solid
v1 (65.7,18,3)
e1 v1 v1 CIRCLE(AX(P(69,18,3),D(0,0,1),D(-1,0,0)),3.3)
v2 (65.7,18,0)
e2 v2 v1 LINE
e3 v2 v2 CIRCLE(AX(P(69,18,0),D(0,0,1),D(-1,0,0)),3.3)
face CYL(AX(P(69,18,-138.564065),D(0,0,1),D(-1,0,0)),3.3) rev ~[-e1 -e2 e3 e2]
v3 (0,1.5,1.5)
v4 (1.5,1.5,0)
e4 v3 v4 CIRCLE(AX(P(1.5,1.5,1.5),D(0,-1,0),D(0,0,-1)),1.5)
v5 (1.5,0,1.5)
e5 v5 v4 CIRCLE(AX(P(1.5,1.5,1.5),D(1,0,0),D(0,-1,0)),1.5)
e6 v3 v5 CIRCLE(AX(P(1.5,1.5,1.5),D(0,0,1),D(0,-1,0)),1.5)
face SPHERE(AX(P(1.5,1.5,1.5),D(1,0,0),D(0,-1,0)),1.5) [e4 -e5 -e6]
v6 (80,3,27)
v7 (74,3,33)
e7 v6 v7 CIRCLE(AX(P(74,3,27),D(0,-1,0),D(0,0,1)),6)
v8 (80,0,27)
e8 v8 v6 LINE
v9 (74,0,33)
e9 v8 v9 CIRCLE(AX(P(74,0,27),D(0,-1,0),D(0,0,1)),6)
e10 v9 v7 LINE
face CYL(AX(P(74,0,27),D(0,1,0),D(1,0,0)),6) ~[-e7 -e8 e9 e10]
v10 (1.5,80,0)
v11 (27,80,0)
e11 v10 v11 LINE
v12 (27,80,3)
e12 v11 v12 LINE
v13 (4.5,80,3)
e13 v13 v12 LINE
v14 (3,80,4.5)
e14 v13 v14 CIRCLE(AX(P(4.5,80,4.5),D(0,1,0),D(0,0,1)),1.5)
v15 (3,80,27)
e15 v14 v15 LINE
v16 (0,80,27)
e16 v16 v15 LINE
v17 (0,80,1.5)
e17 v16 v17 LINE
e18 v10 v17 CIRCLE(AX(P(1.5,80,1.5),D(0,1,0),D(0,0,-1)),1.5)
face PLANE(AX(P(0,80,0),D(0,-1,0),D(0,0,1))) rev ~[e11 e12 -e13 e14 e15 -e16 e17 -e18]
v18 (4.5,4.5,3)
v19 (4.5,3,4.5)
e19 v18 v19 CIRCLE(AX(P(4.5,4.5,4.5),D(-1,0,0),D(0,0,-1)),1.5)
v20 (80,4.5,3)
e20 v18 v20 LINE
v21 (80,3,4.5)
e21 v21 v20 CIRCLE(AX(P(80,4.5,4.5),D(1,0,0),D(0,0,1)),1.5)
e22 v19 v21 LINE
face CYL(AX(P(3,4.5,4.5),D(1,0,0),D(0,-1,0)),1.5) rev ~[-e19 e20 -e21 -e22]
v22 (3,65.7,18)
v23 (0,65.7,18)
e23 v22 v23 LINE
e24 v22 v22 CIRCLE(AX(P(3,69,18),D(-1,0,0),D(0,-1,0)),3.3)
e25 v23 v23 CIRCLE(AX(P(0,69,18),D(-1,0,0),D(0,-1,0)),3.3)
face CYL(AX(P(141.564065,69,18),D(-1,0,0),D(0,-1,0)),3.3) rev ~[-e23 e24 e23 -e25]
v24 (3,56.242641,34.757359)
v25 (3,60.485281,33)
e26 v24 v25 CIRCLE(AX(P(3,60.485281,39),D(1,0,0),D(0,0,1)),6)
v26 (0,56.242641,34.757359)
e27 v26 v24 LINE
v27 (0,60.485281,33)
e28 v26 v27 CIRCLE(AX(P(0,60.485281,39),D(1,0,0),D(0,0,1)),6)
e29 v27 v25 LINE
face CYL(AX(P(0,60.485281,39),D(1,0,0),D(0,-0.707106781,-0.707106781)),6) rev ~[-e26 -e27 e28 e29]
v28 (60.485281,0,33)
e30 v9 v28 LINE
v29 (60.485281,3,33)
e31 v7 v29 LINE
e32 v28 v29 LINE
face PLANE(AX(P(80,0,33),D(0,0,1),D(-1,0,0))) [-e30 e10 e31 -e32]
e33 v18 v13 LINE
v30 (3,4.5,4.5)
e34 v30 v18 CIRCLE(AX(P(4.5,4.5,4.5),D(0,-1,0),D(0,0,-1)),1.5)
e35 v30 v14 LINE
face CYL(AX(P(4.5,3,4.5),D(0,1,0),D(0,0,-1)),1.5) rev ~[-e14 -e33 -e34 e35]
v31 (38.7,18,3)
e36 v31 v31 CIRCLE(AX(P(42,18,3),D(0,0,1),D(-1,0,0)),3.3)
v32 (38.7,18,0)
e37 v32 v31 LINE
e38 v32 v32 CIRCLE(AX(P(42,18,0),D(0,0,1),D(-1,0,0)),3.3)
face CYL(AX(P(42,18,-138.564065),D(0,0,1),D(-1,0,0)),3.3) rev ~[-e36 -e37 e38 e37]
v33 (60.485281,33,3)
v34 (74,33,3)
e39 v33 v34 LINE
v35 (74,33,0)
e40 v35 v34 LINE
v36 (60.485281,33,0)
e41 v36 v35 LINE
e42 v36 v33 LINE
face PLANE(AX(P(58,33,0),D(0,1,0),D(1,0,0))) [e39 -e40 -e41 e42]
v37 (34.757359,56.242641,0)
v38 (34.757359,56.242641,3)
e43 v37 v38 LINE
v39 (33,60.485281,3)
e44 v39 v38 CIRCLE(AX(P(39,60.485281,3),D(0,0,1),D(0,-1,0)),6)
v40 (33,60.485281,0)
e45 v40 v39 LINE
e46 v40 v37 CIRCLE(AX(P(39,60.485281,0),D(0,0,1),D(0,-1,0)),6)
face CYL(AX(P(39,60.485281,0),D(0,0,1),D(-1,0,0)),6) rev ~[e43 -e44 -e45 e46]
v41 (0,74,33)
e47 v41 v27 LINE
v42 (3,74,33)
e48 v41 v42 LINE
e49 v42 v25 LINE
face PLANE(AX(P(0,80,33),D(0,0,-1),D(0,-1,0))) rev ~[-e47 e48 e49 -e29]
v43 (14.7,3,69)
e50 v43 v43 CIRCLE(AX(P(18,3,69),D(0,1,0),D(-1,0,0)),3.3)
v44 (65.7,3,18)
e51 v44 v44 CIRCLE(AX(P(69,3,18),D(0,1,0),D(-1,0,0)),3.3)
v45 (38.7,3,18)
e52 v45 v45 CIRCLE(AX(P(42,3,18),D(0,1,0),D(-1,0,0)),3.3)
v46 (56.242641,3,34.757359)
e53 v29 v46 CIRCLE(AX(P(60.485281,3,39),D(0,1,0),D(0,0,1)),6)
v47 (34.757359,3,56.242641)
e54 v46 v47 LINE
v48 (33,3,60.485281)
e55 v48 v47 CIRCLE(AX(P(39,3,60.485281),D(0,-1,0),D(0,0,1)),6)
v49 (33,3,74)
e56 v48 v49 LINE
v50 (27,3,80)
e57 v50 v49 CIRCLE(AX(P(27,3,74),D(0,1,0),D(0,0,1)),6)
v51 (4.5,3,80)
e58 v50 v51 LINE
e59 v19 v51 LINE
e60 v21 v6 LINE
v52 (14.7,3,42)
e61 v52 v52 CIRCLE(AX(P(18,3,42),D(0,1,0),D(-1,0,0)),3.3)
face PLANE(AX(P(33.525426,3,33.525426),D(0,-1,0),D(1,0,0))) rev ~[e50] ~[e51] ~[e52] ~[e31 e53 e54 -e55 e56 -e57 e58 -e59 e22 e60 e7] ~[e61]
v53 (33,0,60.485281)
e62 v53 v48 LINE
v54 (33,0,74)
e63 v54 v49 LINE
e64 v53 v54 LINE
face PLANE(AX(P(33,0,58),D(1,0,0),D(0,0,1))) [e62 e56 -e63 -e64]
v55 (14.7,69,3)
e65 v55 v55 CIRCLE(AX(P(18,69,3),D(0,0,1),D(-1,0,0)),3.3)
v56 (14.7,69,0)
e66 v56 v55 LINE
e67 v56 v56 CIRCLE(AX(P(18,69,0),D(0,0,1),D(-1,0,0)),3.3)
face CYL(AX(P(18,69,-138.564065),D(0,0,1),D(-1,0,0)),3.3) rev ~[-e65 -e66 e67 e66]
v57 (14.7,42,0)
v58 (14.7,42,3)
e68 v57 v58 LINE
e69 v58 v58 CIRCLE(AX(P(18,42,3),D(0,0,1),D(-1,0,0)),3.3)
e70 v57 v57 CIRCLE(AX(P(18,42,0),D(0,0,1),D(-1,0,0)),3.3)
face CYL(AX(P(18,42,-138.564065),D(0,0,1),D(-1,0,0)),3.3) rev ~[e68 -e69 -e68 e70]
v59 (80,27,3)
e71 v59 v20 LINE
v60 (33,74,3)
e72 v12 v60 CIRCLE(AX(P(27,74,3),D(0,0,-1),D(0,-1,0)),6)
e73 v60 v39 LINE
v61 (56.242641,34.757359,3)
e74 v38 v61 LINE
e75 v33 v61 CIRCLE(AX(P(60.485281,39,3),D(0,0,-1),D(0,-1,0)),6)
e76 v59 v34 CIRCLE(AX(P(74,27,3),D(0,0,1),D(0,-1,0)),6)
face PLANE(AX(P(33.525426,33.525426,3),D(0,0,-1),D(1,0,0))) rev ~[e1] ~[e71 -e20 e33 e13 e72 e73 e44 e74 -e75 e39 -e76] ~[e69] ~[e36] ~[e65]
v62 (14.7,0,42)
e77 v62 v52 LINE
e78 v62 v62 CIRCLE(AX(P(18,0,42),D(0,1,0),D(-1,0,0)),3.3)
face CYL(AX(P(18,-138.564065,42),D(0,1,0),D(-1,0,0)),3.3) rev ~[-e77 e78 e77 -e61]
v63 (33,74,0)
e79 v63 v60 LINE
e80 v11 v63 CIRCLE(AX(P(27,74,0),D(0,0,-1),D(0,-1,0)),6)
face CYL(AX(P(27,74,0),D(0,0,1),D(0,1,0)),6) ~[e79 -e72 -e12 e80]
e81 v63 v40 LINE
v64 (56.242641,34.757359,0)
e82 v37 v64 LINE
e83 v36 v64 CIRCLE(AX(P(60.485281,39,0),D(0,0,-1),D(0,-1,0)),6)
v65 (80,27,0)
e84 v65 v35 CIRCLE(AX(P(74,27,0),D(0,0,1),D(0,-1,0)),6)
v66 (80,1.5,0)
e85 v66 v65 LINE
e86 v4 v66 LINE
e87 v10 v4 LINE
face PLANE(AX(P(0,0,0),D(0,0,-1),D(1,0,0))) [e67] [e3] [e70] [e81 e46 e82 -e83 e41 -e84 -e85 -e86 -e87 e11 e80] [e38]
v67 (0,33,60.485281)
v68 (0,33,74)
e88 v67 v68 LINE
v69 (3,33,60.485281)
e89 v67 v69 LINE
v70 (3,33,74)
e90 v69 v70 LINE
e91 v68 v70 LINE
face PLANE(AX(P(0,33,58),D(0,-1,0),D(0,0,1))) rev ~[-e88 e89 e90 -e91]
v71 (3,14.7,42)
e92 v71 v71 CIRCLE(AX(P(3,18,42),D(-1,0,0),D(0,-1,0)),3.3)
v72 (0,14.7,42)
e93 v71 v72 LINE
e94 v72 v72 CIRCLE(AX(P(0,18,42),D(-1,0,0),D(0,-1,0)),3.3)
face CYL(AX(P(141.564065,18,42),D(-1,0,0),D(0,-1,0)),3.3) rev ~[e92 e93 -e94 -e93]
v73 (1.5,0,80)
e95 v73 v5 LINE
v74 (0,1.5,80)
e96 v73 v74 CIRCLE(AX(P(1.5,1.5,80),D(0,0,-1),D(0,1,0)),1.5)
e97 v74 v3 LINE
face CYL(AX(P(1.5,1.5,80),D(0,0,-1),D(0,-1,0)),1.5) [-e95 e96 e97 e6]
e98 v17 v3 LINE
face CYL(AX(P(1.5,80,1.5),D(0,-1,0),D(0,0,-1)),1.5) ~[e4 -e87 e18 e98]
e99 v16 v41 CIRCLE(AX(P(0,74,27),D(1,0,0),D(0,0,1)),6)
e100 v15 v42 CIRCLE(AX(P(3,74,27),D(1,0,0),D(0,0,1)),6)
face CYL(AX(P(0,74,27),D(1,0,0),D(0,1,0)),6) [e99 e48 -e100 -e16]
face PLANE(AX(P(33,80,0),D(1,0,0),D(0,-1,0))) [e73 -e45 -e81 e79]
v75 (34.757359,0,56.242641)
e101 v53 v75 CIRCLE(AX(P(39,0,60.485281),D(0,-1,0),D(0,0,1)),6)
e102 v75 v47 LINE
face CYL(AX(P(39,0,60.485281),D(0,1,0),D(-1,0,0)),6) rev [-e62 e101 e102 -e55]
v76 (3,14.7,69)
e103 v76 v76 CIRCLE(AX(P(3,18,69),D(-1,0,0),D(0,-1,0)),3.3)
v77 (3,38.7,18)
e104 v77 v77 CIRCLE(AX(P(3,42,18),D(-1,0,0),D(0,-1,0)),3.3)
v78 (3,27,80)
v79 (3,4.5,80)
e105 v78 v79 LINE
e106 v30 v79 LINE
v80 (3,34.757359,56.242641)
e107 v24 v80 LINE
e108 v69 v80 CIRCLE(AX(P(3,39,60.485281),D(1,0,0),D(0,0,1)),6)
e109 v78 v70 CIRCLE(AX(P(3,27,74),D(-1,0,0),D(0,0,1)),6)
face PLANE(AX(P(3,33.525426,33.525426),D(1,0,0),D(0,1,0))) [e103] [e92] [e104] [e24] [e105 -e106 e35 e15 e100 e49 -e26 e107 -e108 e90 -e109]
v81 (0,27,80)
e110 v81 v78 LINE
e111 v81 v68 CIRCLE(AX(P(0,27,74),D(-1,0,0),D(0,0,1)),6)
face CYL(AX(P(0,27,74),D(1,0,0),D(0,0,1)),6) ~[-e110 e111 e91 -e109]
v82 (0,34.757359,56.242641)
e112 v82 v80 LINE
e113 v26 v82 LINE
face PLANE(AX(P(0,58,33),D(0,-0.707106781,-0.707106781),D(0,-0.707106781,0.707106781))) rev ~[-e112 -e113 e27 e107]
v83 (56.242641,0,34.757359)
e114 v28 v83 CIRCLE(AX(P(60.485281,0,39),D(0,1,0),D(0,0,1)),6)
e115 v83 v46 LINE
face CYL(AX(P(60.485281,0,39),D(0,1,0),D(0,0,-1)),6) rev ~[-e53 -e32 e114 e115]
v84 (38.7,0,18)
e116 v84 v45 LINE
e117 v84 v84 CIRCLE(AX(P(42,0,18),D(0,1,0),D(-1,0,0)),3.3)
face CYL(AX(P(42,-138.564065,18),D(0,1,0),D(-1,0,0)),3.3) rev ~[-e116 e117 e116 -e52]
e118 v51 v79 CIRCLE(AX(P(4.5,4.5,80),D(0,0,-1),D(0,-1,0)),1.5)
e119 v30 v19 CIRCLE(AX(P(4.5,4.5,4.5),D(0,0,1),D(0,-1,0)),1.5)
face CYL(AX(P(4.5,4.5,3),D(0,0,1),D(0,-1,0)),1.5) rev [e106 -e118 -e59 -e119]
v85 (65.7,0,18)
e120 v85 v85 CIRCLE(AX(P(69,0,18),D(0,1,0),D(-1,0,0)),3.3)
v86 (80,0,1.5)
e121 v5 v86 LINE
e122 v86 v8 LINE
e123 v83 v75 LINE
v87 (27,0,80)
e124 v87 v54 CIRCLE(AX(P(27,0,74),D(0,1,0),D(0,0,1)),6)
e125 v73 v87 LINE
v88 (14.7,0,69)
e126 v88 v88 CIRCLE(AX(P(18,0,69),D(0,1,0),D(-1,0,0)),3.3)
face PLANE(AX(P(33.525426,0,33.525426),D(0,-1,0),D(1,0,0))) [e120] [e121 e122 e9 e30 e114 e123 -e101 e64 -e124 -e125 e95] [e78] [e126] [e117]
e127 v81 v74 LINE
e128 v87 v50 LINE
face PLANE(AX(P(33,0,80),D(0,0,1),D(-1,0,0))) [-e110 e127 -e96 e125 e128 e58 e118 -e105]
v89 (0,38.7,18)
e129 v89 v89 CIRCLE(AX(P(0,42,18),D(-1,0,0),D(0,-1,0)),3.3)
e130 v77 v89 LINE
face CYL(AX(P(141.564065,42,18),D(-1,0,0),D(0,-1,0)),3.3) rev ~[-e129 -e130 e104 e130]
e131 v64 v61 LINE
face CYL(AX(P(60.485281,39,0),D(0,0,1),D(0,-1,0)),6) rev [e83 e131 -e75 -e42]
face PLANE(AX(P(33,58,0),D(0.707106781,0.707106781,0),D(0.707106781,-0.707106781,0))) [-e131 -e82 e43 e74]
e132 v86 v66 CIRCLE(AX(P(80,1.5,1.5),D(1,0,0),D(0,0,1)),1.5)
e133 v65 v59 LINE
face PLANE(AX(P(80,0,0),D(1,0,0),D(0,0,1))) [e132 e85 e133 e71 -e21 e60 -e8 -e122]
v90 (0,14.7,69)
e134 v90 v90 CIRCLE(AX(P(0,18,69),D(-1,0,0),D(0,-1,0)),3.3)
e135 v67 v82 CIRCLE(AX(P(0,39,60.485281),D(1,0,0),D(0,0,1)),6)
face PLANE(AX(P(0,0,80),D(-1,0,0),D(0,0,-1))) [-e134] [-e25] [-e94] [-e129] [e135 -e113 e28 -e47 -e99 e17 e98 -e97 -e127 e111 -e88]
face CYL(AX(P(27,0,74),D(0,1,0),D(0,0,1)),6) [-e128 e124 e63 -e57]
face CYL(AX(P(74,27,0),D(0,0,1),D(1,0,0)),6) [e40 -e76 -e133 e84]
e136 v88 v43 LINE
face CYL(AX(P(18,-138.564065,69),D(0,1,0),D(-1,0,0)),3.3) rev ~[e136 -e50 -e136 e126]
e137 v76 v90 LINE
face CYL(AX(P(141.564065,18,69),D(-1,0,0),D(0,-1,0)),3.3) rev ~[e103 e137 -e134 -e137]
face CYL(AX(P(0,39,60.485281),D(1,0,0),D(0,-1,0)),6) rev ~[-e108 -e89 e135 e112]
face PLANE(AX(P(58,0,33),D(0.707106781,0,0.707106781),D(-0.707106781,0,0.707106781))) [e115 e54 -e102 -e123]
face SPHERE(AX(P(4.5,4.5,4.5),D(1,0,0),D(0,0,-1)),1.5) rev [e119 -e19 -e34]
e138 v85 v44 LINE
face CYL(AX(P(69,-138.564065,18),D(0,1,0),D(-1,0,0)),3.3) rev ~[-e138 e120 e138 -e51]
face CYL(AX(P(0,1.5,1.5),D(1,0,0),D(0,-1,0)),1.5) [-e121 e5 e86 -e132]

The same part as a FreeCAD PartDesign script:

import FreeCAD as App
import Part
import Sketcher
from FreeCAD import Vector
Q = App.Units.Quantity


def edges_at(feature, points):
    """Names of the edges that pass closest to the given points."""
    edges = feature.Shape.Edges
    near = lambda p: min(range(len(edges)), key=lambda i: edges[i].distToShape(Part.Vertex(*p))[0])
    return sorted({f"Edge{near(p) + 1}" for p in points})

doc = App.newDocument("Part")
body = doc.addObject("PartDesign::Body", "Body")

# Sketch on XZ plane
sketch1 = body.newObject("Sketcher::SketchObject", "Sketch")
sketch1.AttachmentSupport = (doc.getObject("XZ_Plane"), [""])
sketch1.MapMode = "FlatFace"
sketch1.addGeometry([
    Part.LineSegment(Vector(33, 80, 0), Vector(0, 80, 0)),  # 0
    Part.LineSegment(Vector(0, 80, 0), Vector(0, 0, 0)),  # 1
    Part.LineSegment(Vector(0, 0, 0), Vector(80, 0, 0)),  # 2
    Part.LineSegment(Vector(80, 0, 0), Vector(80, 33, 0)),  # 3
    Part.LineSegment(Vector(80, 33, 0), Vector(58, 33, 0)),  # 4
    Part.LineSegment(Vector(58, 33, 0), Vector(33, 58, 0)),  # 5
    Part.LineSegment(Vector(33, 58, 0), Vector(33, 80, 0)),  # 6
], False)
sketch1.addConstraint([
    Sketcher.Constraint("Coincident", 0, 2, 1, 1),
    Sketcher.Constraint("Coincident", 1, 2, 2, 1),
    Sketcher.Constraint("Coincident", 2, 2, 3, 1),
    Sketcher.Constraint("Coincident", 3, 2, 4, 1),
    Sketcher.Constraint("Coincident", 4, 2, 5, 1),
    Sketcher.Constraint("Coincident", 5, 2, 6, 1),
    Sketcher.Constraint("Coincident", 6, 2, 0, 1),
    Sketcher.Constraint("Horizontal", 0),
    Sketcher.Constraint("Vertical", 1),
    Sketcher.Constraint("Horizontal", 2),
    Sketcher.Constraint("Vertical", 3),
    Sketcher.Constraint("Horizontal", 4),
    Sketcher.Constraint("Vertical", 6),
    Sketcher.Constraint("Coincident", 1, 2, -1, 1),
    Sketcher.Constraint("Equal", 2, 1),
    Sketcher.Constraint("Equal", 0, 3),
    Sketcher.Constraint("Equal", 4, 6),
    Sketcher.Constraint("DistanceX", 0, 2, 0, 1, Q("33 mm")),
    Sketcher.Constraint("DistanceX", 2, 1, 2, 2, Q("80 mm")),
    Sketcher.Constraint("DistanceX", 4, 2, 4, 1, Q("22 mm")),
])
pad1 = body.newObject("PartDesign::Pad", "Pad")
pad1.Profile = sketch1
pad1.Length = 3
pad1.Reversed = True

# Sketch on YZ plane
sketch2 = body.newObject("Sketcher::SketchObject", "Sketch001")
sketch2.AttachmentSupport = (doc.getObject("YZ_Plane"), [""])
sketch2.MapMode = "FlatFace"
sketch2.addGeometry([
    Part.LineSegment(Vector(0, 80, 0), Vector(0, 0, 0)),  # 0
    Part.LineSegment(Vector(0, 0, 0), Vector(80, 0, 0)),  # 1
    Part.LineSegment(Vector(80, 0, 0), Vector(80, 33, 0)),  # 2
    Part.LineSegment(Vector(80, 33, 0), Vector(58, 33, 0)),  # 3
    Part.LineSegment(Vector(58, 33, 0), Vector(33, 58, 0)),  # 4
    Part.LineSegment(Vector(33, 58, 0), Vector(33, 80, 0)),  # 5
    Part.LineSegment(Vector(33, 80, 0), Vector(0, 80, 0)),  # 6
], False)
sketch2.addConstraint([
    Sketcher.Constraint("Coincident", 0, 2, 1, 1),
    Sketcher.Constraint("Coincident", 1, 2, 2, 1),
    Sketcher.Constraint("Coincident", 2, 2, 3, 1),
    Sketcher.Constraint("Coincident", 3, 2, 4, 1),
    Sketcher.Constraint("Coincident", 4, 2, 5, 1),
    Sketcher.Constraint("Coincident", 5, 2, 6, 1),
    Sketcher.Constraint("Coincident", 6, 2, 0, 1),
    Sketcher.Constraint("Vertical", 0),
    Sketcher.Constraint("Horizontal", 1),
    Sketcher.Constraint("Vertical", 2),
    Sketcher.Constraint("Horizontal", 3),
    Sketcher.Constraint("Vertical", 5),
    Sketcher.Constraint("Horizontal", 6),
    Sketcher.Constraint("Coincident", 0, 2, -1, 1),
    Sketcher.Constraint("Equal", 1, 0),
    Sketcher.Constraint("Equal", 6, 2),
    Sketcher.Constraint("Equal", 3, 5),
    Sketcher.Constraint("DistanceX", 1, 1, 1, 2, Q("80 mm")),
    Sketcher.Constraint("DistanceX", 3, 2, 3, 1, Q("22 mm")),
    Sketcher.Constraint("DistanceX", 6, 2, 6, 1, Q("33 mm")),
])
pad2 = body.newObject("PartDesign::Pad", "Pad001")
pad2.Profile = sketch2
pad2.Length = 3

# Sketch on XY plane
sketch3 = body.newObject("Sketcher::SketchObject", "Sketch002")
sketch3.AttachmentSupport = (doc.getObject("XY_Plane"), [""])
sketch3.MapMode = "FlatFace"
sketch3.addGeometry([
    Part.LineSegment(Vector(80, 0, 0), Vector(0, 0, 0)),  # 0
    Part.LineSegment(Vector(0, 0, 0), Vector(0, 80, 0)),  # 1
    Part.LineSegment(Vector(0, 80, 0), Vector(33, 80, 0)),  # 2
    Part.LineSegment(Vector(33, 80, 0), Vector(33, 58, 0)),  # 3
    Part.LineSegment(Vector(33, 58, 0), Vector(58, 33, 0)),  # 4
    Part.LineSegment(Vector(58, 33, 0), Vector(80, 33, 0)),  # 5
    Part.LineSegment(Vector(80, 33, 0), Vector(80, 0, 0)),  # 6
], False)
sketch3.addConstraint([
    Sketcher.Constraint("Coincident", 0, 2, 1, 1),
    Sketcher.Constraint("Coincident", 1, 2, 2, 1),
    Sketcher.Constraint("Coincident", 2, 2, 3, 1),
    Sketcher.Constraint("Coincident", 3, 2, 4, 1),
    Sketcher.Constraint("Coincident", 4, 2, 5, 1),
    Sketcher.Constraint("Coincident", 5, 2, 6, 1),
    Sketcher.Constraint("Coincident", 6, 2, 0, 1),
    Sketcher.Constraint("Horizontal", 0),
    Sketcher.Constraint("Vertical", 1),
    Sketcher.Constraint("Horizontal", 2),
    Sketcher.Constraint("Vertical", 3),
    Sketcher.Constraint("Horizontal", 5),
    Sketcher.Constraint("Vertical", 6),
    Sketcher.Constraint("Coincident", 0, 2, -1, 1),
    Sketcher.Constraint("Equal", 0, 1),
    Sketcher.Constraint("Equal", 5, 3),
    Sketcher.Constraint("Equal", 2, 6),
    Sketcher.Constraint("DistanceX", 0, 2, 0, 1, Q("80 mm")),
    Sketcher.Constraint("DistanceX", 2, 1, 2, 2, Q("33 mm")),
    Sketcher.Constraint("DistanceX", 5, 1, 5, 2, Q("22 mm")),
])
pad3 = body.newObject("PartDesign::Pad", "Pad002")
pad3.Profile = sketch3
pad3.Length = 3

# Sketch on XZ plane
sketch4 = body.newObject("Sketcher::SketchObject", "Sketch003")
sketch4.AttachmentSupport = (doc.getObject("XZ_Plane"), [""])
sketch4.MapMode = "FlatFace"
sketch4.addGeometry([
    Part.Circle(Vector(42, 18, 0), Vector(0, 0, 1), 3.3),
    Part.Circle(Vector(69, 18, 0), Vector(0, 0, 1), 3.3),
    Part.Circle(Vector(18, 69, 0), Vector(0, 0, 1), 3.3),
    Part.Circle(Vector(18, 42, 0), Vector(0, 0, 1), 3.3),
], False)
sketch4.addConstraint([
    Sketcher.Constraint("Equal", 0, 1),
    Sketcher.Constraint("Equal", 1, 2),
    Sketcher.Constraint("Equal", 2, 3),
    Sketcher.Constraint("Horizontal", 0, 3, 1, 3),
    Sketcher.Constraint("Vertical", 2, 3, 3, 3),
    Sketcher.Constraint("Diameter", 0, Q("6.6 mm")),
    Sketcher.Constraint("DistanceX", -1, 1, 0, 3, Q("42 mm")),
    Sketcher.Constraint("DistanceY", -1, 1, 0, 3, Q("18 mm")),
    Sketcher.Constraint("DistanceX", -1, 1, 1, 3, Q("69 mm")),
    Sketcher.Constraint("DistanceX", -1, 1, 2, 3, Q("18 mm")),
    Sketcher.Constraint("DistanceY", -1, 1, 2, 3, Q("69 mm")),
    Sketcher.Constraint("DistanceY", -1, 1, 3, 3, Q("42 mm")),
])
doc.recompute()
hole = body.newObject("PartDesign::Hole", "Hole")
hole.Profile = sketch4
hole.ThreadType = "None"
hole.Diameter = 6.6
hole.DepthType = "ThroughAll"

# Sketch on YZ plane
sketch5 = body.newObject("Sketcher::SketchObject", "Sketch004")
sketch5.AttachmentSupport = (doc.getObject("YZ_Plane"), [""])
sketch5.MapMode = "FlatFace"
sketch5.AttachmentOffset = App.Placement(Vector(0, 0, 3), App.Rotation())
sketch5.addGeometry([
    Part.Circle(Vector(42, 18, 0), Vector(0, 0, 1), 3.3),
    Part.Circle(Vector(69, 18, 0), Vector(0, 0, 1), 3.3),
    Part.Circle(Vector(18, 69, 0), Vector(0, 0, 1), 3.3),
    Part.Circle(Vector(18, 42, 0), Vector(0, 0, 1), 3.3),
], False)
sketch5.addConstraint([
    Sketcher.Constraint("Equal", 0, 1),
    Sketcher.Constraint("Equal", 1, 2),
    Sketcher.Constraint("Equal", 2, 3),
    Sketcher.Constraint("Horizontal", 0, 3, 1, 3),
    Sketcher.Constraint("Vertical", 2, 3, 3, 3),
    Sketcher.Constraint("Diameter", 0, Q("6.6 mm")),
    Sketcher.Constraint("DistanceX", -1, 1, 0, 3, Q("42 mm")),
    Sketcher.Constraint("DistanceY", -1, 1, 0, 3, Q("18 mm")),
    Sketcher.Constraint("DistanceX", -1, 1, 1, 3, Q("69 mm")),
    Sketcher.Constraint("DistanceX", -1, 1, 2, 3, Q("18 mm")),
    Sketcher.Constraint("DistanceY", -1, 1, 2, 3, Q("69 mm")),
    Sketcher.Constraint("DistanceY", -1, 1, 3, 3, Q("42 mm")),
])
doc.recompute()
hole2 = body.newObject("PartDesign::Hole", "Hole001")
hole2.Profile = sketch5
hole2.ThreadType = "None"
hole2.Diameter = 6.6
hole2.DepthType = "ThroughAll"

# Sketch on XY plane
sketch6 = body.newObject("Sketcher::SketchObject", "Sketch005")
sketch6.AttachmentSupport = (doc.getObject("XY_Plane"), [""])
sketch6.MapMode = "FlatFace"
sketch6.addGeometry([
    Part.Circle(Vector(42, 18, 0), Vector(0, 0, 1), 3.3),
    Part.Circle(Vector(69, 18, 0), Vector(0, 0, 1), 3.3),
    Part.Circle(Vector(18, 42, 0), Vector(0, 0, 1), 3.3),
    Part.Circle(Vector(18, 69, 0), Vector(0, 0, 1), 3.3),
], False)
sketch6.addConstraint([
    Sketcher.Constraint("Equal", 0, 1),
    Sketcher.Constraint("Equal", 1, 2),
    Sketcher.Constraint("Equal", 2, 3),
    Sketcher.Constraint("Horizontal", 0, 3, 1, 3),
    Sketcher.Constraint("Vertical", 2, 3, 3, 3),
    Sketcher.Constraint("Diameter", 0, Q("6.6 mm")),
    Sketcher.Constraint("DistanceX", -1, 1, 0, 3, Q("42 mm")),
    Sketcher.Constraint("DistanceY", -1, 1, 0, 3, Q("18 mm")),
    Sketcher.Constraint("DistanceX", -1, 1, 1, 3, Q("69 mm")),
    Sketcher.Constraint("DistanceX", -1, 1, 2, 3, Q("18 mm")),
    Sketcher.Constraint("DistanceY", -1, 1, 2, 3, Q("42 mm")),
    Sketcher.Constraint("DistanceY", -1, 1, 3, 3, Q("69 mm")),
])
doc.recompute()
hole3 = body.newObject("PartDesign::Hole", "Hole002")
hole3.Profile = sketch6
hole3.ThreadType = "None"
hole3.Diameter = 6.6
hole3.DepthType = "ThroughAll"
hole3.Reversed = True
doc.recompute()

fillet = body.newObject("PartDesign::Fillet", "Fillet")
fillet.Base = (hole3, edges_at(hole3, [
    (33, 1.5, 80),
    (1.5, 80, 33),
    (80, 1.5, 33),
    (33, 1.5, 58),
    (58, 1.5, 33),
    (58, 33, 1.5),
    (33, 58, 1.5),
    (1.5, 58, 33),
    (1.5, 33, 58),
    (1.5, 33, 80),
    (33, 80, 1.5),
    (80, 33, 1.5),
]))
fillet.Radius = 6
doc.recompute()

fillet2 = body.newObject("PartDesign::Fillet", "Fillet001")
fillet2.Base = (fillet, edges_at(fillet, [
    (41.5, 3, 3),
    (3, 41.5, 3),
    (3, 3, 41.5),
    (40, 0, 0),
    (0, 0, 40),
    (0, 40, 0),
]))
fillet2.Radius = 1.5

doc.recompute()
